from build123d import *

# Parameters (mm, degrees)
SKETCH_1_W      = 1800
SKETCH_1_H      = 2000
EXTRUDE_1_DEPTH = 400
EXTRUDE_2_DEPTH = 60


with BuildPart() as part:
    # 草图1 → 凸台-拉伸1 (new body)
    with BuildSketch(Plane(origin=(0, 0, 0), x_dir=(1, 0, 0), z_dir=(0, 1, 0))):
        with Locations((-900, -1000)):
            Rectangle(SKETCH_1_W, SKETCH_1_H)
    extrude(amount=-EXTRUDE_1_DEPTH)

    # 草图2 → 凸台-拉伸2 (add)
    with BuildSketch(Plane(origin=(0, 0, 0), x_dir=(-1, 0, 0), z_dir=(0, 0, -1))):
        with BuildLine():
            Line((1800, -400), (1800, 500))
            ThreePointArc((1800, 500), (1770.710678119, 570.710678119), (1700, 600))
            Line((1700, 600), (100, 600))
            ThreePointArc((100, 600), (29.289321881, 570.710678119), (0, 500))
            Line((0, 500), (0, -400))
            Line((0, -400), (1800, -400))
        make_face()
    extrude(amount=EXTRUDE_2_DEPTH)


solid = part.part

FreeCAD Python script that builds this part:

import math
import FreeCAD as App
import Part
import Sketcher

V = App.Vector


def add_polygon(sketch, points):
    """Adds a closed chain of lines whose ends are joined by coincident constraints."""
    first, n = sketch.GeometryCount, len(points)
    for a, b in zip(points, points[1:] + points[:1]):
        sketch.addGeometry(Part.LineSegment(App.Vector(*a, 0), App.Vector(*b, 0)), False)
    for i in range(n):
        sketch.addConstraint(Sketcher.Constraint("Coincident", first + i, 2, first + (i + 1) % n, 1))

doc = App.newDocument("Part")
body = doc.addObject("PartDesign::Body", "Body")

sketch1 = body.newObject("Sketcher::SketchObject", "Sketch")
sketch1.AttachmentSupport = (doc.getObject("XZ_Plane"), [""])
sketch1.MapMode = "FlatFace"
add_polygon(sketch1, [(-1800, 0), (-1800, 2000), (0, 2000), (0, 0)])
sketch1.addConstraint([
    Sketcher.Constraint("Vertical", 0),
    Sketcher.Constraint("Horizontal", 1),
    Sketcher.Constraint("Vertical", 2),
    Sketcher.Constraint("Horizontal", 3),
    Sketcher.Constraint("Coincident", 2, 2, -1, 1),
    Sketcher.Constraint("DistanceX", 1, 1, 1, 2, 1800.0),
    Sketcher.Constraint("DistanceY", 0, 1, 0, 2, 2000.0),
])
pad1 = body.newObject("PartDesign::Pad", "Pad")
pad1.Profile = sketch1
pad1.Length = 400

sketch2 = body.newObject("Sketcher::SketchObject", "Sketch001")
sketch2.AttachmentSupport = (doc.getObject("XY_Plane"), [""])
sketch2.MapMode = "FlatFace"
sketch2.addGeometry([
    Part.LineSegment(V(-1800, -400, 0), V(-1800, 500, 0)),
    Part.ArcOfCircle(Part.Circle(V(-1700, 500, 0), V(0, 0, 1), 100), math.radians(90), math.radians(180)),
    Part.LineSegment(V(-1700, 600, 0), V(-100, 600, 0)),
    Part.ArcOfCircle(Part.Circle(V(-100, 500, 0), V(0, 0, 1), 100), math.radians(0), math.radians(90)),
    Part.LineSegment(V(0, 500, 0), V(0, -400, 0)),
    Part.LineSegment(V(0, -400, 0), V(-1800, -400, 0)),
], False)
sketch2.addConstraint([
    Sketcher.Constraint("Tangent", 0, 2, 1, 2),
    Sketcher.Constraint("Tangent", 1, 1, 2, 1),
    Sketcher.Constraint("Tangent", 2, 2, 3, 2),
    Sketcher.Constraint("Tangent", 3, 1, 4, 1),
    Sketcher.Constraint("Coincident", 4, 2, 5, 1),
    Sketcher.Constraint("Coincident", 5, 2, 0, 1),
    Sketcher.Constraint("Vertical", 0),
    Sketcher.Constraint("Horizontal", 2),
    Sketcher.Constraint("Vertical", 4),
    Sketcher.Constraint("Horizontal", 5),
    Sketcher.Constraint("Equal", 1, 3),
    Sketcher.Constraint("PointOnObject", 3, 1, -2),
    Sketcher.Constraint("Radius", 1, 100.0),
    Sketcher.Constraint("DistanceX", 2, 1, 2, 2, 1600.0),
    Sketcher.Constraint("DistanceY", 0, 1, 0, 2, 900.0),
    Sketcher.Constraint("DistanceY", -1, 1, 1, 3, 500.0),
])
pad2 = body.newObject("PartDesign::Pad", "Pad001")
pad2.Profile = sketch2
pad2.Length = 60
pad2.Reversed = True

doc.recompute()
